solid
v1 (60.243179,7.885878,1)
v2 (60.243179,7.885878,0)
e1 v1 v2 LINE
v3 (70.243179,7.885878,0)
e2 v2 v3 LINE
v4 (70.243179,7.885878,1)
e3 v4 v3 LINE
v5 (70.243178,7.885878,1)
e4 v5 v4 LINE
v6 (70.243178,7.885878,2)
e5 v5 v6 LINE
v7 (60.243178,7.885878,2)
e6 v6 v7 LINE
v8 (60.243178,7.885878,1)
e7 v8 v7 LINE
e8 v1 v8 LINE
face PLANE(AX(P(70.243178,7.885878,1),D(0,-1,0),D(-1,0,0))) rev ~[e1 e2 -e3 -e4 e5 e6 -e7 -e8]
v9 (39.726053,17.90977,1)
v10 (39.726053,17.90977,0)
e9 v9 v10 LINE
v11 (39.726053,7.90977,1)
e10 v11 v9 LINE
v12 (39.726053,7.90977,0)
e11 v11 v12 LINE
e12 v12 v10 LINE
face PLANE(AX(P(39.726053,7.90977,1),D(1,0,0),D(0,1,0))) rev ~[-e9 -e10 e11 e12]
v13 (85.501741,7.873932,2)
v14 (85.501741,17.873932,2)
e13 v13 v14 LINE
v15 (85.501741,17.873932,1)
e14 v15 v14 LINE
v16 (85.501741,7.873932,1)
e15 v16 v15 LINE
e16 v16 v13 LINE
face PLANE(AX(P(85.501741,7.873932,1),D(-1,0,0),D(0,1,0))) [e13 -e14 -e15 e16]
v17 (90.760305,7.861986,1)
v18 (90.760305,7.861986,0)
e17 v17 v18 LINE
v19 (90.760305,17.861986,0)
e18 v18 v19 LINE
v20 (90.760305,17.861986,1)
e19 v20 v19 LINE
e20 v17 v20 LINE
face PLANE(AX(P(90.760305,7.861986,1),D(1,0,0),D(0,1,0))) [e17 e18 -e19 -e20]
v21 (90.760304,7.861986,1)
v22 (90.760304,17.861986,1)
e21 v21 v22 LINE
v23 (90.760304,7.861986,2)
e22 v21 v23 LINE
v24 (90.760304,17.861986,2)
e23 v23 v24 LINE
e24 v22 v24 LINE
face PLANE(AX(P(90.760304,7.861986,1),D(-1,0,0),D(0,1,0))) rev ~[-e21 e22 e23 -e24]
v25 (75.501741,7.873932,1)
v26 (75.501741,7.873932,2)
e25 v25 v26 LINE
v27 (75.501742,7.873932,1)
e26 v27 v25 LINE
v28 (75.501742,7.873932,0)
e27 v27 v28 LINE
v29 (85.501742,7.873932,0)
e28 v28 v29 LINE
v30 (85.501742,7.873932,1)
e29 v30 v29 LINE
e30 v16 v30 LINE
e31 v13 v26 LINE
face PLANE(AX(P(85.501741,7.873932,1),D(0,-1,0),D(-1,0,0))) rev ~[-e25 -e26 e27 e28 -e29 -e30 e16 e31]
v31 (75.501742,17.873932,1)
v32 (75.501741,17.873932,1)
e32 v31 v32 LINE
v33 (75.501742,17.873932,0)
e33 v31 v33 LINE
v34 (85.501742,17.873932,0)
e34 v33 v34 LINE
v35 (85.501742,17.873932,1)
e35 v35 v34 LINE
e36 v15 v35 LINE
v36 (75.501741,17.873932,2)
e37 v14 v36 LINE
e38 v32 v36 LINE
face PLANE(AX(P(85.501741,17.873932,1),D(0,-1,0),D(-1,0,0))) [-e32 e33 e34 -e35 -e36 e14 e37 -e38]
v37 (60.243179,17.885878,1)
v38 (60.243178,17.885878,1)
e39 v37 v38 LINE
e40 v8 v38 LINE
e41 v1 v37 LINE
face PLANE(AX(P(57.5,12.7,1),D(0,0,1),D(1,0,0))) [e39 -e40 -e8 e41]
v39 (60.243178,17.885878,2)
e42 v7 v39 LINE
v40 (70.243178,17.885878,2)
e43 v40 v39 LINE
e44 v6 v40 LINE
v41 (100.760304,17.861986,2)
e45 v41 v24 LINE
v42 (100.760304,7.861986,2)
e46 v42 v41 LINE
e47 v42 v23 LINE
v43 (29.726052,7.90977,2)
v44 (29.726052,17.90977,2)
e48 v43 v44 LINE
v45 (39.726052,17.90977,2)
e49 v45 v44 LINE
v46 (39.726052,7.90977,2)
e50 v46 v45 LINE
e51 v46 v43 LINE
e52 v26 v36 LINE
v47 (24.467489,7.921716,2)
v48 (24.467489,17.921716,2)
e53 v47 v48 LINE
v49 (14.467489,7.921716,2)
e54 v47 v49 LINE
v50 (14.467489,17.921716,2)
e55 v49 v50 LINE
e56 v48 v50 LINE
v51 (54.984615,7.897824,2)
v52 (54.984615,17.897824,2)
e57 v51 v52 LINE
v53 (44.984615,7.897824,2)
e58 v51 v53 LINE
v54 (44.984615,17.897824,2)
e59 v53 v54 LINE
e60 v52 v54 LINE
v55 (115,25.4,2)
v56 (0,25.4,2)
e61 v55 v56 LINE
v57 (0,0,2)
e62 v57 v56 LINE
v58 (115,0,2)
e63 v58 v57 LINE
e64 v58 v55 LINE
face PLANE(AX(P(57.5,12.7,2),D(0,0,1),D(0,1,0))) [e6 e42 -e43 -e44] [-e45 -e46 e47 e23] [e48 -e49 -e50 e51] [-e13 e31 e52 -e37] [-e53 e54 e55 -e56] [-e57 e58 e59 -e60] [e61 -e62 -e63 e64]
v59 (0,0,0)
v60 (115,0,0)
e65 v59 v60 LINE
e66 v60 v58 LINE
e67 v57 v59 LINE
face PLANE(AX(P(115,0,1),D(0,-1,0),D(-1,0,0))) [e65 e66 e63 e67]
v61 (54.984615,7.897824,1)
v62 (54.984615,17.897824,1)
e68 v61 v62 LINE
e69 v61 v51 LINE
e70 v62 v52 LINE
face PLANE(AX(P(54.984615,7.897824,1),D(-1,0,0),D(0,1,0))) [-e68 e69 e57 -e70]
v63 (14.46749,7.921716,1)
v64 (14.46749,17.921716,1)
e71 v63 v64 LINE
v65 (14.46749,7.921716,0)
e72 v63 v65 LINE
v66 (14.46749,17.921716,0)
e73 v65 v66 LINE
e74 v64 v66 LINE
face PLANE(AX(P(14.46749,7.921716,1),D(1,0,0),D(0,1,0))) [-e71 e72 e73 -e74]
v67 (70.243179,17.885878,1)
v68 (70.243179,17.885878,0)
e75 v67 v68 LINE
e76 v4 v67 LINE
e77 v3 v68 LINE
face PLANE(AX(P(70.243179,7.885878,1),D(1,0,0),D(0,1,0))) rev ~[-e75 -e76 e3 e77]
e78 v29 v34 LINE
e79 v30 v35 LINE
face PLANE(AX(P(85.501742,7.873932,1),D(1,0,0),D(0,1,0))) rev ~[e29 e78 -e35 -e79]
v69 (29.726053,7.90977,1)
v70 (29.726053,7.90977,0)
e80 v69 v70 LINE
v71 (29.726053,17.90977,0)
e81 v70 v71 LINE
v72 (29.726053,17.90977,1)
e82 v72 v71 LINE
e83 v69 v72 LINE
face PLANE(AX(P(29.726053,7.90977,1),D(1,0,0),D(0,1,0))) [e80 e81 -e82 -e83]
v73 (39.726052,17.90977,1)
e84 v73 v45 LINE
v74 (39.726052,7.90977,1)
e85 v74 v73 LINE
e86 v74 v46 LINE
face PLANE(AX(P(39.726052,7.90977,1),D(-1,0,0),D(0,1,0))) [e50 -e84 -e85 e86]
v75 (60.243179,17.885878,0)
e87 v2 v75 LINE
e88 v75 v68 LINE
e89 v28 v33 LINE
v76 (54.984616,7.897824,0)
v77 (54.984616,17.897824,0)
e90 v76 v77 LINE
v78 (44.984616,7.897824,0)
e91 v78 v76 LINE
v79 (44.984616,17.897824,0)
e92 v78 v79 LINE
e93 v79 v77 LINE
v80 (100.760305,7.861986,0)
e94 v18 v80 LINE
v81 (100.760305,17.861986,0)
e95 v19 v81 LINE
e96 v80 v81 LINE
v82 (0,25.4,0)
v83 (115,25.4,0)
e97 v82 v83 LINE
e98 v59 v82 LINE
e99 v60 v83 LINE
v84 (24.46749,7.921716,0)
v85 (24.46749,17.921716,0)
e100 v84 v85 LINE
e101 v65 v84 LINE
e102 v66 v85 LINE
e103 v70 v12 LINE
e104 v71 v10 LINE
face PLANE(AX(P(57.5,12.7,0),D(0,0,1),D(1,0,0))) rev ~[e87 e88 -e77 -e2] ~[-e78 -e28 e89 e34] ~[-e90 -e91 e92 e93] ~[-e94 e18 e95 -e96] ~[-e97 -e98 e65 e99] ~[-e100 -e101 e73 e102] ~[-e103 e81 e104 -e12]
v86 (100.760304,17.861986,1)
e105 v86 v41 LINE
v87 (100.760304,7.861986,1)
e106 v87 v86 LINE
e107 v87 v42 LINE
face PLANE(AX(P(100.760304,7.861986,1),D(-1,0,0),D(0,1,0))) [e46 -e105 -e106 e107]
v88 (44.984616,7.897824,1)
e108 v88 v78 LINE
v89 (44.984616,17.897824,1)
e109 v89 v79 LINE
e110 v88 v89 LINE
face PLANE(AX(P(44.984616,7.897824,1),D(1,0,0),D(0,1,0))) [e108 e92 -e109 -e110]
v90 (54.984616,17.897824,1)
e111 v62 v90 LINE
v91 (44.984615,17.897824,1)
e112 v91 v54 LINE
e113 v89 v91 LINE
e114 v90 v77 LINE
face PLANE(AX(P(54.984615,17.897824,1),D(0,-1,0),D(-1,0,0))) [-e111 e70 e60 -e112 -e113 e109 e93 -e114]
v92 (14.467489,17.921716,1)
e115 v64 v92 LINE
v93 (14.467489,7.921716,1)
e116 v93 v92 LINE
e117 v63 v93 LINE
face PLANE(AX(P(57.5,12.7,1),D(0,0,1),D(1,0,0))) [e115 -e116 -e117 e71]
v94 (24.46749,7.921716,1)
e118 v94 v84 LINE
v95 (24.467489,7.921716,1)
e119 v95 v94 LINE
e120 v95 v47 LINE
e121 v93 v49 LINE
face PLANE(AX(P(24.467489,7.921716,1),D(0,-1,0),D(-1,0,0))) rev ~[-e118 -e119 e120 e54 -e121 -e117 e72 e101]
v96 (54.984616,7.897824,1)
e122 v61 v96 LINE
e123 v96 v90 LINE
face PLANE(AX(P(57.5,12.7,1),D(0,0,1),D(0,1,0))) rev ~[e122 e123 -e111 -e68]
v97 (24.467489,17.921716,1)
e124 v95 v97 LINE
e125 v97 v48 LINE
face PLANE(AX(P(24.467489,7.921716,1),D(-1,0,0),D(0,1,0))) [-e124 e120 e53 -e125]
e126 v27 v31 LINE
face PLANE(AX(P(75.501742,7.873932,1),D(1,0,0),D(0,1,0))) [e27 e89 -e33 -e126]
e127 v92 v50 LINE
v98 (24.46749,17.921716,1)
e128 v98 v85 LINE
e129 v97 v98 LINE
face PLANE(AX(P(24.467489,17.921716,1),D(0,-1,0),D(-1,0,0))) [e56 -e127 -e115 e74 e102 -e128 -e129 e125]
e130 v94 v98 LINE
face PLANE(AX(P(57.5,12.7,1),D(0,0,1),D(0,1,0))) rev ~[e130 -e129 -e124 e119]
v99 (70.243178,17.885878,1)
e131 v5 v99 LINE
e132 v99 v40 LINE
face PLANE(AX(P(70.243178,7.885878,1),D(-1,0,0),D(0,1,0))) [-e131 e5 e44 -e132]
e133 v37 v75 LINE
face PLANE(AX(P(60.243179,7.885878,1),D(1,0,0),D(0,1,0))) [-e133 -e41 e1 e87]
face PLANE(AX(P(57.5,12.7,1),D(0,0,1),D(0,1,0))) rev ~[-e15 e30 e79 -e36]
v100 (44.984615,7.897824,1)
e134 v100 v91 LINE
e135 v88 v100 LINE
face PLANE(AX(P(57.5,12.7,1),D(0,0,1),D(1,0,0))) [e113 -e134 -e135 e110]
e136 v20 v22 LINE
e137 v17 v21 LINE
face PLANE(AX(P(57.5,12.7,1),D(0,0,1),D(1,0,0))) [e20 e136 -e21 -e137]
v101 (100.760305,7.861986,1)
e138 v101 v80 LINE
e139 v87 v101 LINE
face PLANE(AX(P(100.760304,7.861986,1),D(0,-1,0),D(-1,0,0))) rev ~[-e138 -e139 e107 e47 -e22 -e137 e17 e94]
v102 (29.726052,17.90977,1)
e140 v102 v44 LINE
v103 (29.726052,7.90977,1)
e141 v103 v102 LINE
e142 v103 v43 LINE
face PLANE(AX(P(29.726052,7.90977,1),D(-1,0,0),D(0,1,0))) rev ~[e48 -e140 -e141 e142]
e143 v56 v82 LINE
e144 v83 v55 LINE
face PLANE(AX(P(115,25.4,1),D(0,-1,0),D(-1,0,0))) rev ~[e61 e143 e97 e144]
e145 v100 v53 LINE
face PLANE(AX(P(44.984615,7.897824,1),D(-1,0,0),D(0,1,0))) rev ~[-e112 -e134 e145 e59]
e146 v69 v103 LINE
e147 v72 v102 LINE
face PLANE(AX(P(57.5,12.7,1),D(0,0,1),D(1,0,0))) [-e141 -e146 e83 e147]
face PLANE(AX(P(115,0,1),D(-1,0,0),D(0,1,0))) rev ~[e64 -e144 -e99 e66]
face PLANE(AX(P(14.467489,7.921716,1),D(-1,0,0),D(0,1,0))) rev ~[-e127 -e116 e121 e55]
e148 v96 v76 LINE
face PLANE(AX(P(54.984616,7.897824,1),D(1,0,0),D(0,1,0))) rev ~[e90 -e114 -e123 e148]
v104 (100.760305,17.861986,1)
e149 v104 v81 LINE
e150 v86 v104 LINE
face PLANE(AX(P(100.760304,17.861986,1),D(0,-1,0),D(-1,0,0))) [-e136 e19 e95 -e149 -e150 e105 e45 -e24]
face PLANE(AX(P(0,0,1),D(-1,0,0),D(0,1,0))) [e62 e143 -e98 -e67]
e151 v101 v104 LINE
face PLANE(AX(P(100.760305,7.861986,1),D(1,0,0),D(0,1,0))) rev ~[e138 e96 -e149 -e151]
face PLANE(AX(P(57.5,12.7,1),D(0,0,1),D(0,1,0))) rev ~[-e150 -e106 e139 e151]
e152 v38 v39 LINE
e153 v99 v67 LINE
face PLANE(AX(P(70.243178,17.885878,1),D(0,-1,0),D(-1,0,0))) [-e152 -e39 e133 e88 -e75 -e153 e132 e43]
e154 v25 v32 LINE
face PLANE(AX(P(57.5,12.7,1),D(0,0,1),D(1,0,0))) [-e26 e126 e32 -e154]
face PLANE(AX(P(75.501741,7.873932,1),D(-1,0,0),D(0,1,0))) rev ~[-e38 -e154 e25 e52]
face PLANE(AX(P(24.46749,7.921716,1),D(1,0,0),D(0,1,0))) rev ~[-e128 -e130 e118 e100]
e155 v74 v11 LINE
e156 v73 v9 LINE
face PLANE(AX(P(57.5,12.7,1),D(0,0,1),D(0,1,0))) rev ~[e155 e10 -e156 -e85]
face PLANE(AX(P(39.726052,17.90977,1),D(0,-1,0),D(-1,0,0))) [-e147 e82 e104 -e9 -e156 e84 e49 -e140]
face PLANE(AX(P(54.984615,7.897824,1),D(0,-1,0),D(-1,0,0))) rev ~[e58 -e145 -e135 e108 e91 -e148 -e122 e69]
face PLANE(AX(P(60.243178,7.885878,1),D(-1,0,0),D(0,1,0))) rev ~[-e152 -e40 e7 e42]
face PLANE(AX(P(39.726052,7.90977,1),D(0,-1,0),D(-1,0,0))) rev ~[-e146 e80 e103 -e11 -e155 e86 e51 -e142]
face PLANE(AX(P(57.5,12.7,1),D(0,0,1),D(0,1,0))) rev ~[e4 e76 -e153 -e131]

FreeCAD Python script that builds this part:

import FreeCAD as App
import Part
import Sketcher

doc = App.newDocument("Part")
body = doc.addObject("PartDesign::Body", "Body")

# Sketch on XY plane
sketch1 = doc.addObject("Sketcher::SketchObject", "Sketch")
body.addObject(sketch1)
sketch1.AttachmentSupport = (doc.XY_Plane, [""])
sketch1.MapMode = "FlatFace"
sketch1.addGeometry([
    Part.LineSegment(App.Vector(0, 25, 0), App.Vector(0, 0, 0)),
    Part.LineSegment(App.Vector(0, 0, 0), App.Vector(115, 0, 0)),
    Part.LineSegment(App.Vector(115, 0, 0), App.Vector(115, 25, 0)),
    Part.LineSegment(App.Vector(115, 25, 0), App.Vector(0, 25, 0)),
], False)
sketch1.addConstraint([
    Sketcher.Constraint("Coincident", 0, 2, 1, 1),
    Sketcher.Constraint("Coincident", 1, 2, 2, 1),
    Sketcher.Constraint("Coincident", 2, 2, 3, 1),
    Sketcher.Constraint("Coincident", 3, 2, 0, 1),
    Sketcher.Constraint("Vertical", 0),
    Sketcher.Constraint("Horizontal", 1),
    Sketcher.Constraint("Vertical", 2),
    Sketcher.Constraint("Horizontal", 3),
    Sketcher.Constraint("Coincident", 0, 2, -1, 1),
    Sketcher.Constraint("DistanceX", 1, 1, 1, 2, 115.0),
    Sketcher.Constraint("DistanceY", 0, 2, 0, 1, 25.4),
])
pad1 = doc.addObject("PartDesign::Pad", "Pad")
body.addObject(pad1)
pad1.Profile = sketch1
pad1.Length = 1

# Sketch on XY plane
sketch2 = doc.addObject("Sketcher::SketchObject", "Sketch001")
body.addObject(sketch2)
sketch2.AttachmentSupport = (doc.XY_Plane, [""])
sketch2.MapMode = "FlatFace"
sketch2.AttachmentOffset = App.Placement(App.Vector(0, 0, 1), App.Rotation())
sketch2.addGeometry([
    Part.LineSegment(App.Vector(14, 18, 0), App.Vector(14, 8, 0)),  # 0
    Part.LineSegment(App.Vector(14, 8, 0), App.Vector(24, 8, 0)),  # 1
    Part.LineSegment(App.Vector(24, 8, 0), App.Vector(24, 18, 0)),  # 2
    Part.LineSegment(App.Vector(24, 18, 0), App.Vector(14, 18, 0)),  # 3
    Part.LineSegment(App.Vector(30, 18, 0), App.Vector(30, 8, 0)),  # 4
    Part.LineSegment(App.Vector(30, 8, 0), App.Vector(40, 8, 0)),  # 5
    Part.LineSegment(App.Vector(40, 8, 0), App.Vector(40, 18, 0)),  # 6
    Part.LineSegment(App.Vector(40, 18, 0), App.Vector(30, 18, 0)),  # 7
    Part.LineSegment(App.Vector(45, 18, 0), App.Vector(45, 8, 0)),  # 8
    Part.LineSegment(App.Vector(45, 8, 0), App.Vector(55, 8, 0)),  # 9
    Part.LineSegment(App.Vector(55, 8, 0), App.Vector(55, 18, 0)),  # 10
    Part.LineSegment(App.Vector(55, 18, 0), App.Vector(45, 18, 0)),  # 11
    Part.LineSegment(App.Vector(60, 18, 0), App.Vector(60, 8, 0)),  # 12
    Part.LineSegment(App.Vector(60, 8, 0), App.Vector(70, 8, 0)),  # 13
    Part.LineSegment(App.Vector(70, 8, 0), App.Vector(70, 18, 0)),  # 14
    Part.LineSegment(App.Vector(70, 18, 0), App.Vector(60, 18, 0)),  # 15
    Part.LineSegment(App.Vector(76, 18, 0), App.Vector(76, 8, 0)),  # 16
    Part.LineSegment(App.Vector(76, 8, 0), App.Vector(86, 8, 0)),  # 17
    Part.LineSegment(App.Vector(86, 8, 0), App.Vector(86, 18, 0)),  # 18
    Part.LineSegment(App.Vector(86, 18, 0), App.Vector(76, 18, 0)),  # 19
    Part.LineSegment(App.Vector(91, 18, 0), App.Vector(91, 8, 0)),  # 20
    Part.LineSegment(App.Vector(91, 8, 0), App.Vector(101, 8, 0)),  # 21
    Part.LineSegment(App.Vector(101, 8, 0), App.Vector(101, 18, 0)),  # 22
    Part.LineSegment(App.Vector(101, 18, 0), App.Vector(91, 18, 0)),  # 23
], False)
sketch2.addConstraint([
    Sketcher.Constraint("Coincident", 0, 2, 1, 1),
    Sketcher.Constraint("Coincident", 1, 2, 2, 1),
    Sketcher.Constraint("Coincident", 2, 2, 3, 1),
    Sketcher.Constraint("Coincident", 3, 2, 0, 1),
    Sketcher.Constraint("Coincident", 4, 2, 5, 1),
    Sketcher.Constraint("Coincident", 5, 2, 6, 1),
    Sketcher.Constraint("Coincident", 6, 2, 7, 1),
    Sketcher.Constraint("Coincident", 7, 2, 4, 1),
    Sketcher.Constraint("Coincident", 8, 2, 9, 1),
    Sketcher.Constraint("Coincident", 9, 2, 10, 1),
    Sketcher.Constraint("Coincident", 10, 2, 11, 1),
    Sketcher.Constraint("Coincident", 11, 2, 8, 1),
    Sketcher.Constraint("Coincident", 12, 2, 13, 1),
    Sketcher.Constraint("Coincident", 13, 2, 14, 1),
    Sketcher.Constraint("Coincident", 14, 2, 15, 1),
    Sketcher.Constraint("Coincident", 15, 2, 12, 1),
    Sketcher.Constraint("Coincident", 16, 2, 17, 1),
    Sketcher.Constraint("Coincident", 17, 2, 18, 1),
    Sketcher.Constraint("Coincident", 18, 2, 19, 1),
    Sketcher.Constraint("Coincident", 19, 2, 16, 1),
    Sketcher.Constraint("Coincident", 20, 2, 21, 1),
    Sketcher.Constraint("Coincident", 21, 2, 22, 1),
    Sketcher.Constraint("Coincident", 22, 2, 23, 1),
    Sketcher.Constraint("Coincident", 23, 2, 20, 1),
    Sketcher.Constraint("Vertical", 0),
    Sketcher.Constraint("Horizontal", 1),
    Sketcher.Constraint("Vertical", 2),
    Sketcher.Constraint("Horizontal", 3),
    Sketcher.Constraint("Vertical", 4),
    Sketcher.Constraint("Horizontal", 5),
    Sketcher.Constraint("Vertical", 6),
    Sketcher.Constraint("Horizontal", 7),
    Sketcher.Constraint("Vertical", 8),
    Sketcher.Constraint("Horizontal", 9),
    Sketcher.Constraint("Vertical", 10),
    Sketcher.Constraint("Horizontal", 11),
    Sketcher.Constraint("Vertical", 12),
    Sketcher.Constraint("Horizontal", 13),
    Sketcher.Constraint("Vertical", 14),
    Sketcher.Constraint("Horizontal", 15),
    Sketcher.Constraint("Vertical", 16),
    Sketcher.Constraint("Horizontal", 17),
    Sketcher.Constraint("Vertical", 18),
    Sketcher.Constraint("Horizontal", 19),
    Sketcher.Constraint("Vertical", 20),
    Sketcher.Constraint("Horizontal", 21),
    Sketcher.Constraint("Vertical", 22),
    Sketcher.Constraint("Horizontal", 23),
    Sketcher.Constraint("Equal", 3, 5),
    Sketcher.Constraint("Equal", 7, 9),
    Sketcher.Constraint("Equal", 11, 13),
    Sketcher.Constraint("Equal", 15, 17),
    Sketcher.Constraint("Equal", 19, 21),
    Sketcher.Constraint("Equal", 23, 0),
    Sketcher.Constraint("Equal", 2, 4),
    Sketcher.Constraint("Equal", 6, 8),
    Sketcher.Constraint("Equal", 10, 12),
    Sketcher.Constraint("Equal", 14, 16),
    Sketcher.Constraint("Equal", 18, 20),
    Sketcher.Constraint("DistanceX", 1, 1, 1, 2, 10.0),
    Sketcher.Constraint("DistanceX", -1, 1, 0, 2, 14.46749),
    Sketcher.Constraint("DistanceY", -1, 1, 4, 2, 7.90977),
    Sketcher.Constraint("DistanceX", -1, 1, 12, 2, 60.243179),
    Sketcher.Constraint("DistanceY", -1, 1, 14, 2, 17.885878),
    Sketcher.Constraint("DistanceX", -1, 1, 16, 2, 75.501742),
    Sketcher.Constraint("DistanceY", -1, 1, 18, 2, 17.873932),
    Sketcher.Constraint("DistanceY", -1, 1, 0, 2, 7.921716),
    Sketcher.Constraint("DistanceX", -1, 1, 4, 2, 29.726053),
    Sketcher.Constraint("DistanceX", -1, 1, 8, 2, 44.984616),
    Sketcher.Constraint("DistanceY", -1, 1, 8, 2, 7.897824),
    Sketcher.Constraint("DistanceX", -1, 1, 20, 2, 90.760305),
    Sketcher.Constraint("DistanceY", -1, 1, 20, 2, 7.861986),
])
pocket1 = doc.addObject("PartDesign::Pocket", "Pocket")
body.addObject(pocket1)
pocket1.Profile = sketch2
pocket1.Type = "ThroughAll"

# Sketch on XY plane
sketch3 = doc.addObject("Sketcher::SketchObject", "Sketch002")
body.addObject(sketch3)
sketch3.AttachmentSupport = (doc.XY_Plane, [""])
sketch3.MapMode = "FlatFace"
sketch3.AttachmentOffset = App.Placement(App.Vector(0, 0, 1), App.Rotation())
sketch3.addGeometry([
    Part.LineSegment(App.Vector(0, 0, 0), App.Vector(115, 0, 0)),  # 0
    Part.LineSegment(App.Vector(115, 0, 0), App.Vector(115, 25, 0)),  # 1
    Part.LineSegment(App.Vector(115, 25, 0), App.Vector(0, 25, 0)),  # 2
    Part.LineSegment(App.Vector(0, 25, 0), App.Vector(0, 0, 0)),  # 3
    Part.LineSegment(App.Vector(101, 18, 0), App.Vector(101, 8, 0)),  # 4
    Part.LineSegment(App.Vector(101, 8, 0), App.Vector(91, 8, 0)),  # 5
    Part.LineSegment(App.Vector(91, 8, 0), App.Vector(91, 18, 0)),  # 6
    Part.LineSegment(App.Vector(91, 18, 0), App.Vector(101, 18, 0)),  # 7
    Part.LineSegment(App.Vector(86, 18, 0), App.Vector(86, 8, 0)),  # 8
    Part.LineSegment(App.Vector(86, 8, 0), App.Vector(76, 8, 0)),  # 9
    Part.LineSegment(App.Vector(76, 8, 0), App.Vector(76, 18, 0)),  # 10
    Part.LineSegment(App.Vector(76, 18, 0), App.Vector(86, 18, 0)),  # 11
    Part.LineSegment(App.Vector(70, 18, 0), App.Vector(70, 8, 0)),  # 12
    Part.LineSegment(App.Vector(70, 8, 0), App.Vector(60, 8, 0)),  # 13
    Part.LineSegment(App.Vector(60, 8, 0), App.Vector(60, 18, 0)),  # 14
    Part.LineSegment(App.Vector(60, 18, 0), App.Vector(70, 18, 0)),  # 15
    Part.LineSegment(App.Vector(55, 18, 0), App.Vector(55, 8, 0)),  # 16
    Part.LineSegment(App.Vector(55, 8, 0), App.Vector(45, 8, 0)),  # 17
    Part.LineSegment(App.Vector(45, 8, 0), App.Vector(45, 18, 0)),  # 18
    Part.LineSegment(App.Vector(45, 18, 0), App.Vector(55, 18, 0)),  # 19
    Part.LineSegment(App.Vector(40, 18, 0), App.Vector(40, 8, 0)),  # 20
    Part.LineSegment(App.Vector(40, 8, 0), App.Vector(30, 8, 0)),  # 21
    Part.LineSegment(App.Vector(30, 8, 0), App.Vector(30, 18, 0)),  # 22
    Part.LineSegment(App.Vector(30, 18, 0), App.Vector(40, 18, 0)),  # 23
    Part.LineSegment(App.Vector(24, 18, 0), App.Vector(24, 8, 0)),  # 24
    Part.LineSegment(App.Vector(24, 8, 0), App.Vector(14, 8, 0)),  # 25
    Part.LineSegment(App.Vector(14, 8, 0), App.Vector(14, 18, 0)),  # 26
    Part.LineSegment(App.Vector(14, 18, 0), App.Vector(24, 18, 0)),  # 27
], False)
sketch3.addConstraint([
    Sketcher.Constraint("Coincident", 0, 2, 1, 1),
    Sketcher.Constraint("Coincident", 1, 2, 2, 1),
    Sketcher.Constraint("Coincident", 2, 2, 3, 1),
    Sketcher.Constraint("Coincident", 3, 2, 0, 1),
    Sketcher.Constraint("Coincident", 4, 2, 5, 1),
    Sketcher.Constraint("Coincident", 5, 2, 6, 1),
    Sketcher.Constraint("Coincident", 6, 2, 7, 1),
    Sketcher.Constraint("Coincident", 7, 2, 4, 1),
    Sketcher.Constraint("Coincident", 8, 2, 9, 1),
    Sketcher.Constraint("Coincident", 9, 2, 10, 1),
    Sketcher.Constraint("Coincident", 10, 2, 11, 1),
    Sketcher.Constraint("Coincident", 11, 2, 8, 1),
    Sketcher.Constraint("Coincident", 12, 2, 13, 1),
    Sketcher.Constraint("Coincident", 13, 2, 14, 1),
    Sketcher.Constraint("Coincident", 14, 2, 15, 1),
    Sketcher.Constraint("Coincident", 15, 2, 12, 1),
    Sketcher.Constraint("Coincident", 16, 2, 17, 1),
    Sketcher.Constraint("Coincident", 17, 2, 18, 1),
    Sketcher.Constraint("Coincident", 18, 2, 19, 1),
    Sketcher.Constraint("Coincident", 19, 2, 16, 1),
    Sketcher.Constraint("Coincident", 20, 2, 21, 1),
    Sketcher.Constraint("Coincident", 21, 2, 22, 1),
    Sketcher.Constraint("Coincident", 22, 2, 23, 1),
    Sketcher.Constraint("Coincident", 23, 2, 20, 1),
    Sketcher.Constraint("Coincident", 24, 2, 25, 1),
    Sketcher.Constraint("Coincident", 25, 2, 26, 1),
    Sketcher.Constraint("Coincident", 26, 2, 27, 1),
    Sketcher.Constraint("Coincident", 27, 2, 24, 1),
    Sketcher.Constraint("Horizontal", 0),
    Sketcher.Constraint("Vertical", 1),
    Sketcher.Constraint("Horizontal", 2),
    Sketcher.Constraint("Vertical", 3),
    Sketcher.Constraint("Vertical", 4),
    Sketcher.Constraint("Horizontal", 5),
    Sketcher.Constraint("Vertical", 6),
    Sketcher.Constraint("Horizontal", 7),
    Sketcher.Constraint("Vertical", 8),
    Sketcher.Constraint("Horizontal", 9),
    Sketcher.Constraint("Vertical", 10),
    Sketcher.Constraint("Horizontal", 11),
    Sketcher.Constraint("Vertical", 12),
    Sketcher.Constraint("Horizontal", 13),
    Sketcher.Constraint("Vertical", 14),
    Sketcher.Constraint("Horizontal", 15),
    Sketcher.Constraint("Vertical", 16),
    Sketcher.Constraint("Horizontal", 17),
    Sketcher.Constraint("Vertical", 18),
    Sketcher.Constraint("Horizontal", 19),
    Sketcher.Constraint("Vertical", 20),
    Sketcher.Constraint("Horizontal", 21),
    Sketcher.Constraint("Vertical", 22),
    Sketcher.Constraint("Horizontal", 23),
    Sketcher.Constraint("Vertical", 24),
    Sketcher.Constraint("Horizontal", 25),
    Sketcher.Constraint("Vertical", 26),
    Sketcher.Constraint("Horizontal", 27),
    Sketcher.Constraint("Coincident", 3, 2, -1, 1),
    Sketcher.Constraint("Equal", 7, 9),
    Sketcher.Constraint("Equal", 11, 13),
    Sketcher.Constraint("Equal", 15, 17),
    Sketcher.Constraint("Equal", 19, 21),
    Sketcher.Constraint("Equal", 23, 25),
    Sketcher.Constraint("Equal", 27, 4),
    Sketcher.Constraint("Equal", 6, 8),
    Sketcher.Constraint("Equal", 10, 12),
    Sketcher.Constraint("Equal", 14, 16),
    Sketcher.Constraint("Equal", 18, 20),
    Sketcher.Constraint("Equal", 22, 24),
    Sketcher.Constraint("DistanceX", 0, 1, 0, 2, 115.0),
    Sketcher.Constraint("DistanceX", 5, 2, 5, 1, 10.0),
    Sketcher.Constraint("DistanceY", 1, 1, 1, 2, 25.4),
    Sketcher.Constraint("DistanceX", -1, 1, 8, 2, 85.501741),
    Sketcher.Constraint("DistanceY", -1, 1, 10, 2, 17.873932),
    Sketcher.Constraint("DistanceX", -1, 1, 12, 2, 70.243178),
    Sketcher.Constraint("DistanceY", -1, 1, 14, 2, 17.885878),
    Sketcher.Constraint("DistanceY", -1, 1, 20, 2, 7.90977),
    Sketcher.Constraint("DistanceX", -1, 1, 21, 2, 29.726052),
    Sketcher.Constraint("DistanceX", -1, 1, 24, 2, 24.467489),
    Sketcher.Constraint("DistanceX", -1, 1, 4, 2, 100.760304),
    Sketcher.Constraint("DistanceY", -1, 1, 4, 2, 7.861986),
    Sketcher.Constraint("DistanceX", -1, 1, 16, 2, 54.984615),
    Sketcher.Constraint("DistanceY", -1, 1, 16, 2, 7.897824),
    Sketcher.Constraint("DistanceY", -1, 1, 24, 2, 7.921716),
])
pad2 = doc.addObject("PartDesign::Pad", "Pad001")
body.addObject(pad2)
pad2.Profile = sketch3
pad2.Length = 1

doc.recompute()
